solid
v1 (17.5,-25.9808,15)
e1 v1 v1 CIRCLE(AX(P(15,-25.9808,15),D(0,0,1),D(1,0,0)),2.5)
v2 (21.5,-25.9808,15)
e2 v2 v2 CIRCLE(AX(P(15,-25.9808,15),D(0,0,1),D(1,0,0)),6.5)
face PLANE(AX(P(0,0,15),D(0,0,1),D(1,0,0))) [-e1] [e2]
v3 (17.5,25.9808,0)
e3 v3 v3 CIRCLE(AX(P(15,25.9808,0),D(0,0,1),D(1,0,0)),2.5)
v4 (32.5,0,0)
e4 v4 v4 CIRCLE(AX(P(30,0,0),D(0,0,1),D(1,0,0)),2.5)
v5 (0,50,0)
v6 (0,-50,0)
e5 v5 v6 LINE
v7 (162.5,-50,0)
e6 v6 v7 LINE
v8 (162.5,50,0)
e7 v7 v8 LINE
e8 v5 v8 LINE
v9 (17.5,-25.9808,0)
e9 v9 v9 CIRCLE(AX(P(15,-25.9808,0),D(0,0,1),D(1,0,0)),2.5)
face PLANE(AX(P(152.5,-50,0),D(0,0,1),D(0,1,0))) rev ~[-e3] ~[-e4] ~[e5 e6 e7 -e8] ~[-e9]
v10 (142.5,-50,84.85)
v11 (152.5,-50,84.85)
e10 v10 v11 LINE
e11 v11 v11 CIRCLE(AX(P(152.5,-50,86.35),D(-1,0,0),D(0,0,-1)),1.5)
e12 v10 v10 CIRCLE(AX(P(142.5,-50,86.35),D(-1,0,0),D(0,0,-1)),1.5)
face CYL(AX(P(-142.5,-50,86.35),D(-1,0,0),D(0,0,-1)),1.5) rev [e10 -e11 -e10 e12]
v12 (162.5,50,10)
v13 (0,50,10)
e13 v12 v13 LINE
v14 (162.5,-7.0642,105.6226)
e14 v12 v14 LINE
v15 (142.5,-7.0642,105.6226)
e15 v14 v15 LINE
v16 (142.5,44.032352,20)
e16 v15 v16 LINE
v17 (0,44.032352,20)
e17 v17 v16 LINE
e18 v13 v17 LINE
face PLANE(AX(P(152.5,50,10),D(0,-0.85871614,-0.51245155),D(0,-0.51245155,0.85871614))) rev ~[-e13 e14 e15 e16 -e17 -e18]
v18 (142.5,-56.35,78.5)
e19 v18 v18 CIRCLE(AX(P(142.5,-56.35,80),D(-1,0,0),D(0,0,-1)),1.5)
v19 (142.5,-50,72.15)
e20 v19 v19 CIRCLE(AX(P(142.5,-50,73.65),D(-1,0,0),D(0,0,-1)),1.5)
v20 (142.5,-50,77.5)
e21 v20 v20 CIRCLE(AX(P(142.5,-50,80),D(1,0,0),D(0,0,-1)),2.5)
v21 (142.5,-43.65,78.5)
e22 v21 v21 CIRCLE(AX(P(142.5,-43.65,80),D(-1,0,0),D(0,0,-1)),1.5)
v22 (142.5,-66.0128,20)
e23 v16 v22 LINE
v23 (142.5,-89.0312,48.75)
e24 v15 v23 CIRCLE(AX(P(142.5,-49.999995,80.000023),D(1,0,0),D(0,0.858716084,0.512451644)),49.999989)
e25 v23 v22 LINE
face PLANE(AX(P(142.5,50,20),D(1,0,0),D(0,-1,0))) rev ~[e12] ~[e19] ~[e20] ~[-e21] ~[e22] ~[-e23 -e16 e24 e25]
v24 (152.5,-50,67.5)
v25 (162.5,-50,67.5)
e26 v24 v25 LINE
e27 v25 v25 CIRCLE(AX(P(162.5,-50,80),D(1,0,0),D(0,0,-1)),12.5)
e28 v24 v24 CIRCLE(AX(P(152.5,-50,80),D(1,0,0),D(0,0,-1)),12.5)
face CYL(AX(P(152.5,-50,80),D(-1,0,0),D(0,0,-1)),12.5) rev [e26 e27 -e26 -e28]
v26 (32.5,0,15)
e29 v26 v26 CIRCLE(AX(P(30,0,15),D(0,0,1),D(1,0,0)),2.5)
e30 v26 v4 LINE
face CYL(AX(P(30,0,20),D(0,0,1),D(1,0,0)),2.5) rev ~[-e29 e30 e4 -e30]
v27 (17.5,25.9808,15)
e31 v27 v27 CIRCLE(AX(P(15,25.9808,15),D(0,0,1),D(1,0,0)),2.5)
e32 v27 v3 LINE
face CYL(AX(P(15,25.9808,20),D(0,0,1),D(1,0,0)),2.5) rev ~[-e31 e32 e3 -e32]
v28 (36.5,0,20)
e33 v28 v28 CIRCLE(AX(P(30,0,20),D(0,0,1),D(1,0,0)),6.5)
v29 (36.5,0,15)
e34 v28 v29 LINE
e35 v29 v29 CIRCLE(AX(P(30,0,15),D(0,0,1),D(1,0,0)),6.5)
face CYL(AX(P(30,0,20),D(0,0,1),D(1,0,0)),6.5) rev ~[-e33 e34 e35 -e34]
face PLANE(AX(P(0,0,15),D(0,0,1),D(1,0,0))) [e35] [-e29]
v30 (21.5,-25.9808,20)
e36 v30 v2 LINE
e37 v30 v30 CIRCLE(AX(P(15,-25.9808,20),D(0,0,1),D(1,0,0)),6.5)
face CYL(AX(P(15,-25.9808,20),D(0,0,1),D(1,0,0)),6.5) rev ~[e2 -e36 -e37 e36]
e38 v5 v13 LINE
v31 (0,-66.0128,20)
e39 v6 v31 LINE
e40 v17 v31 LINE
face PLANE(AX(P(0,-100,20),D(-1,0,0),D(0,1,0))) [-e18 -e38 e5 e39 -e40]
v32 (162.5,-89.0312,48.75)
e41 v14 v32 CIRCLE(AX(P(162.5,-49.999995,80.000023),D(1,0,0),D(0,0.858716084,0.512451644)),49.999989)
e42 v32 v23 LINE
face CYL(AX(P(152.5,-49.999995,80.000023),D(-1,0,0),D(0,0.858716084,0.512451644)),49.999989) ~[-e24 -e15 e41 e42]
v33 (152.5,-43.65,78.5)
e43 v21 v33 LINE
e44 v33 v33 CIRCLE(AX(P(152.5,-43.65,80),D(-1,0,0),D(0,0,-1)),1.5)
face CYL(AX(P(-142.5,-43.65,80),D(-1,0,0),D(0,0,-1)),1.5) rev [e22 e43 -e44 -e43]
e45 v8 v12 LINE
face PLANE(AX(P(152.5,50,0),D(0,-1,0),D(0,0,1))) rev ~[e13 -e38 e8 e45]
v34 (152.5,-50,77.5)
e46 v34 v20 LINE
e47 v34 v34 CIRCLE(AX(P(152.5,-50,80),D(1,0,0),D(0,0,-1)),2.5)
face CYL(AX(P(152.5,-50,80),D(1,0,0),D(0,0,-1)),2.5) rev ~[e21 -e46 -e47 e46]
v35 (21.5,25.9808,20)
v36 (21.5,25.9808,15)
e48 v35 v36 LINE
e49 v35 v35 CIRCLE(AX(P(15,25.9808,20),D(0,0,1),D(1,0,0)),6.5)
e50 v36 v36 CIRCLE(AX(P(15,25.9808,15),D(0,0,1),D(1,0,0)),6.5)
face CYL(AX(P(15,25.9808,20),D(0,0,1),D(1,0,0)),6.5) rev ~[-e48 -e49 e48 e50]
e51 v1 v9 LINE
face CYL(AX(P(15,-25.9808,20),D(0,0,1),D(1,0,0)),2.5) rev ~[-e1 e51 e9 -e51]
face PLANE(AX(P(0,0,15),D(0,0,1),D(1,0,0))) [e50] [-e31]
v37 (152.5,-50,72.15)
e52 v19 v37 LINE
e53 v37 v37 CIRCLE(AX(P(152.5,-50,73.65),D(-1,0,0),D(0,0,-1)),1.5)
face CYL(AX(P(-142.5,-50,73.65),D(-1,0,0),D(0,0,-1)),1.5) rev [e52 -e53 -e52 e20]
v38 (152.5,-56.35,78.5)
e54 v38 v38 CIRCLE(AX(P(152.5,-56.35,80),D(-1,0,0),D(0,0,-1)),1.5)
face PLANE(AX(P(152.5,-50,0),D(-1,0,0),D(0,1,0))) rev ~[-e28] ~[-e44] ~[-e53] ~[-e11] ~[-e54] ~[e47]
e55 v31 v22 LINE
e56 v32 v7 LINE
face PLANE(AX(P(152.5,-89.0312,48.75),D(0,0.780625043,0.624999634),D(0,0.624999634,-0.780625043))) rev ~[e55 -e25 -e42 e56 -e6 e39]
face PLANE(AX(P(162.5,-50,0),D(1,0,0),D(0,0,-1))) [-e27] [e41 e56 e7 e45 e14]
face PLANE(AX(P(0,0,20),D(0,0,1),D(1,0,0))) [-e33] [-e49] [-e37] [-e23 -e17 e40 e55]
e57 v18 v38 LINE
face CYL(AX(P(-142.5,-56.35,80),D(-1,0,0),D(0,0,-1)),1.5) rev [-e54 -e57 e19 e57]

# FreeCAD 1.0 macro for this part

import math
import FreeCAD as App
import Part
import Sketcher
from FreeCAD import Vector

doc = App.newDocument("Part")
body = doc.addObject("PartDesign::Body", "Body")

# Sketch on XY plane
sketch1 = body.newObject("Sketcher::SketchObject", "Sketch")
sketch1.AttachmentSupport = (doc.getObject("XY_Plane"), [""])
sketch1.MapMode = "FlatFace"
sketch1.addGeometry([
    Part.LineSegment(Vector(-152.5, 50, 0), Vector(-152.5, -50, 0)),
    Part.LineSegment(Vector(-152.5, -50, 0), Vector(152.5, -50, 0)),
    Part.LineSegment(Vector(152.5, -50, 0), Vector(152.5, 50, 0)),
    Part.LineSegment(Vector(152.5, 50, 0), Vector(-152.5, 50, 0)),
], False)
sketch1.addConstraint([
    Sketcher.Constraint("Coincident", 0, 2, 1, 1),
    Sketcher.Constraint("Coincident", 1, 2, 2, 1),
    Sketcher.Constraint("Coincident", 2, 2, 3, 1),
    Sketcher.Constraint("Coincident", 3, 2, 0, 1),
    Sketcher.Constraint("Vertical", 0),
    Sketcher.Constraint("Horizontal", 1),
    Sketcher.Constraint("Vertical", 2),
    Sketcher.Constraint("Horizontal", 3),
    Sketcher.Constraint("Symmetric", 0, 2, 2, 2, -1, 1),
    Sketcher.Constraint("DistanceX", 1, 1, 1, 2, 305.0),
    Sketcher.Constraint("DistanceY", 0, 2, 0, 1, 100.0),
])
pad1 = body.newObject("PartDesign::Pad", "Pad")
pad1.Profile = sketch1
pad1.Length = 10

# Sketch on YZ plane
sketch2 = body.newObject("Sketcher::SketchObject", "Sketch001")
sketch2.AttachmentSupport = (doc.getObject("YZ_Plane"), [""])
sketch2.MapMode = "FlatFace"
sketch2.AttachmentOffset = App.Placement(Vector(0, 0, 152.5), App.Rotation())
sketch2.addGeometry([
    Part.LineSegment(Vector(-89.0312, 48.75, 0), Vector(-50, 0, 0)),  # 0
    Part.LineSegment(Vector(-50, 0, 0), Vector(-50, 10, 0)),  # 1
    Part.LineSegment(Vector(-50, 10, 0), Vector(50, 10, 0)),  # 2
    Part.LineSegment(Vector(50, 10, 0), Vector(-7.0642, 105.6226, 0)),  # 3
    Part.ArcOfCircle(Part.Circle(Vector(-50, 80, 0), Vector(0, 0, 1), 50), math.radians(30.827291), math.radians(218.682214)),  # 4
], False)
sketch2.addConstraint([
    Sketcher.Constraint("Coincident", 0, 2, 1, 1),
    Sketcher.Constraint("Coincident", 1, 2, 2, 1),
    Sketcher.Constraint("Coincident", 2, 2, 3, 1),
    Sketcher.Constraint("Tangent", 3, 2, 4, 1),
    Sketcher.Constraint("Tangent", 4, 2, 0, 1),
    Sketcher.Constraint("Vertical", 1),
    Sketcher.Constraint("Horizontal", 2),
    Sketcher.Constraint("PointOnObject", 0, 2, -1),
    Sketcher.Constraint("Vertical", 4, 3, 0, 2),
    Sketcher.Constraint("Radius", 4, 50.0),
    Sketcher.Constraint("DistanceX", 2, 1, 2, 2, 100.0),
    Sketcher.Constraint("DistanceY", -1, 1, 4, 3, 80.0),
    Sketcher.Constraint("DistanceY", 1, 1, 1, 2, 10.0),
    Sketcher.Constraint("DistanceX", 4, 3, -1, 1, 50.0),
])
pad2 = body.newObject("PartDesign::Pad", "Pad001")
pad2.Profile = sketch2
pad2.Length = 305
pad2.Reversed = True

# Sketch on XY plane
sketch3 = body.newObject("Sketcher::SketchObject", "Sketch002")
sketch3.AttachmentSupport = (doc.getObject("XY_Plane"), [""])
sketch3.MapMode = "FlatFace"
sketch3.AttachmentOffset = App.Placement(Vector(0, 0, 20), App.Rotation())
sketch3.addGeometry([
    Part.LineSegment(Vector(142.5, -100, 0), Vector(142.5, 50, 0)),
    Part.LineSegment(Vector(142.5, 50, 0), Vector(-142.5, 50, 0)),
    Part.LineSegment(Vector(-142.5, 50, 0), Vector(-142.5, -100, 0)),
    Part.LineSegment(Vector(-142.5, -100, 0), Vector(142.5, -100, 0)),
], False)
sketch3.addConstraint([
    Sketcher.Constraint("Coincident", 0, 2, 1, 1),
    Sketcher.Constraint("Coincident", 1, 2, 2, 1),
    Sketcher.Constraint("Coincident", 2, 2, 3, 1),
    Sketcher.Constraint("Coincident", 3, 2, 0, 1),
    Sketcher.Constraint("Vertical", 0),
    Sketcher.Constraint("Horizontal", 1),
    Sketcher.Constraint("Vertical", 2),
    Sketcher.Constraint("Horizontal", 3),
    Sketcher.Constraint("DistanceX", 1, 2, 1, 1, 285.0),
    Sketcher.Constraint("DistanceY", 0, 1, 0, 2, 150.0),
    Sketcher.Constraint("DistanceY", -1, 1, 0, 2, 50.0),
    Sketcher.Constraint("DistanceX", -1, 1, 0, 2, 142.5),
])
pocket1 = body.newObject("PartDesign::Pocket", "Pocket")
pocket1.Profile = sketch3
pocket1.Type = "ThroughAll"
pocket1.Reversed = True

# Sketch on YZ plane
sketch4 = body.newObject("Sketcher::SketchObject", "Sketch003")
sketch4.AttachmentSupport = (doc.getObject("YZ_Plane"), [""])
sketch4.MapMode = "FlatFace"
sketch4.AttachmentOffset = App.Placement(Vector(0, 0, 152.5), App.Rotation())
sketch4.addGeometry(Part.Circle(Vector(-50, 80, 0), Vector(0, 0, 1), 2.5), False)
sketch4.addConstraint([
    Sketcher.Constraint("Diameter", 0, 5.0),
    Sketcher.Constraint("DistanceX", 0, 3, -1, 1, 50.0),
    Sketcher.Constraint("DistanceY", -1, 1, 0, 3, 80.0),
])
pocket2 = body.newObject("PartDesign::Pocket", "Pocket001")
pocket2.Profile = sketch4
pocket2.Type = "ThroughAll"

# Sketch on XY plane
sketch5 = body.newObject("Sketcher::SketchObject", "Sketch004")
sketch5.AttachmentSupport = (doc.getObject("XY_Plane"), [""])
sketch5.MapMode = "FlatFace"
sketch5.AttachmentOffset = App.Placement(Vector(0, 0, 20), App.Rotation())
sketch5.addGeometry([
    Part.Circle(Vector(30, 0, 0), Vector(0, 0, 1), 2.5),  # 0
    Part.Circle(Vector(15, 25.9808, 0), Vector(0, 0, 1), 2.5),  # 1
    Part.Circle(Vector(-15, 25.9808, 0), Vector(0, 0, 1), 2.5),  # 2
    Part.Circle(Vector(-30, 0, 0), Vector(0, 0, 1), 2.5),  # 3
    Part.Circle(Vector(-15, -25.9808, 0), Vector(0, 0, 1), 2.5),  # 4
    Part.Circle(Vector(15, -25.9808, 0), Vector(0, 0, 1), 2.5),  # 5
], False)
sketch5.addConstraint([
    Sketcher.Constraint("Equal", 0, 1),
    Sketcher.Constraint("Equal", 1, 2),
    Sketcher.Constraint("Equal", 2, 3),
    Sketcher.Constraint("Equal", 3, 4),
    Sketcher.Constraint("Equal", 4, 5),
    Sketcher.Constraint("Symmetric", 0, 3, 3, 3, -1, 1),
    Sketcher.Constraint("Symmetric", 1, 3, 4, 3, -1, 1),
    Sketcher.Constraint("Symmetric", 2, 3, 5, 3, -1, 1),
    Sketcher.Constraint("Symmetric", 1, 3, 2, 3, -2),
    Sketcher.Constraint("PointOnObject", 0, 3, -1),
    Sketcher.Constraint("Diameter", 0, 5.0),
    Sketcher.Constraint("DistanceX", -1, 1, 0, 3, 30.0),
    Sketcher.Constraint("DistanceX", 2, 3, 1, 3, 30.0),
    Sketcher.Constraint("DistanceY", -1, 1, 1, 3, 25.9808),
])
pocket3 = body.newObject("PartDesign::Pocket", "Pocket002")
pocket3.Profile = sketch5
pocket3.Type = "ThroughAll"

# Sketch on YZ plane
sketch6 = body.newObject("Sketcher::SketchObject", "Sketch005")
sketch6.AttachmentSupport = (doc.getObject("YZ_Plane"), [""])
sketch6.MapMode = "FlatFace"
sketch6.AttachmentOffset = App.Placement(Vector(0, 0, -142.5), App.Rotation())
sketch6.addGeometry([
    Part.Circle(Vector(-43.65, 80, 0), Vector(0, 0, 1), 1.5),
    Part.Circle(Vector(-50, 86.35, 0), Vector(0, 0, 1), 1.5),
    Part.Circle(Vector(-56.35, 80, 0), Vector(0, 0, 1), 1.5),
    Part.Circle(Vector(-50, 73.65, 0), Vector(0, 0, 1), 1.5),
], False)
sketch6.addConstraint([
    Sketcher.Constraint("Equal", 0, 1),
    Sketcher.Constraint("Equal", 1, 2),
    Sketcher.Constraint("Equal", 2, 3),
    Sketcher.Constraint("Horizontal", 0, 3, 2, 3),
    Sketcher.Constraint("Vertical", 1, 3, 3, 3),
    Sketcher.Constraint("Diameter", 0, 3.0),
    Sketcher.Constraint("DistanceX", 1, 3, 0, 3, 6.35),
    Sketcher.Constraint("DistanceY", 0, 3, 1, 3, 6.35),
    Sketcher.Constraint("DistanceX", 2, 3, 1, 3, 6.35),
    Sketcher.Constraint("DistanceY", 3, 3, 0, 3, 6.35),
    Sketcher.Constraint("DistanceY", -1, 1, 0, 3, 80.0),
    Sketcher.Constraint("DistanceX", 1, 3, -1, 1, 50.0),
])
pocket4 = body.newObject("PartDesign::Pocket", "Pocket003")
pocket4.Profile = sketch6
pocket4.Type = "ThroughAll"
pocket4.Midplane = True

# Sketch on XY plane
sketch7 = body.newObject("Sketcher::SketchObject", "Sketch006")
sketch7.AttachmentSupport = (doc.getObject("XY_Plane"), [""])
sketch7.MapMode = "FlatFace"
sketch7.AttachmentOffset = App.Placement(Vector(0, 0, 20), App.Rotation())
sketch7.addGeometry([
    Part.LineSegment(Vector(0, -100, 0), Vector(0, 50, 0)),
    Part.LineSegment(Vector(0, 50, 0), Vector(-152.5, 50, 0)),
    Part.LineSegment(Vector(-152.5, 50, 0), Vector(-152.5, -100, 0)),
    Part.LineSegment(Vector(-152.5, -100, 0), Vector(0, -100, 0)),
], False)
sketch7.addConstraint([
    Sketcher.Constraint("Coincident", 0, 2, 1, 1),
    Sketcher.Constraint("Coincident", 1, 2, 2, 1),
    Sketcher.Constraint("Coincident", 2, 2, 3, 1),
    Sketcher.Constraint("Coincident", 3, 2, 0, 1),
    Sketcher.Constraint("Vertical", 0),
    Sketcher.Constraint("Horizontal", 1),
    Sketcher.Constraint("Vertical", 2),
    Sketcher.Constraint("Horizontal", 3),
    Sketcher.Constraint("PointOnObject", 0, 2, -2),
    Sketcher.Constraint("DistanceY", 0, 1, 0, 2, 150.0),
    Sketcher.Constraint("DistanceX", 1, 2, 1, 1, 152.5),
    Sketcher.Constraint("DistanceY", -1, 1, 0, 2, 50.0),
])
pocket5 = body.newObject("PartDesign::Pocket", "Pocket004")
pocket5.Profile = sketch7
pocket5.Type = "ThroughAll"
pocket5.Midplane = True

# Sketch on YZ plane
sketch8 = body.newObject("Sketcher::SketchObject", "Sketch007")
sketch8.AttachmentSupport = (doc.getObject("YZ_Plane"), [""])
sketch8.MapMode = "FlatFace"
sketch8.AttachmentOffset = App.Placement(Vector(0, 0, 152.5), App.Rotation())
sketch8.addGeometry([
    Part.LineSegment(Vector(-89.0312, 48.75, 0), Vector(-50, 0, 0)),  # 0
    Part.LineSegment(Vector(-50, 0, 0), Vector(50, 0, 0)),  # 1
    Part.LineSegment(Vector(50, 0, 0), Vector(50, 10, 0)),  # 2
    Part.LineSegment(Vector(50, 10, 0), Vector(-7.0642, 105.6226, 0)),  # 3
    Part.ArcOfCircle(Part.Circle(Vector(-50, 80, 0), Vector(0, 0, 1), 50.000006), math.radians(30.827291), math.radians(218.682214)),  # 4
    Part.Circle(Vector(-50, 80, 0), Vector(0, 0, 1), 12.5),  # 5
], False)
sketch8.addConstraint([
    Sketcher.Constraint("Coincident", 0, 2, 1, 1),
    Sketcher.Constraint("Coincident", 1, 2, 2, 1),
    Sketcher.Constraint("Coincident", 2, 2, 3, 1),
    Sketcher.Constraint("Tangent", 3, 2, 4, 1),
    Sketcher.Constraint("Tangent", 4, 2, 0, 1),
    Sketcher.Constraint("Horizontal", 1),
    Sketcher.Constraint("Vertical", 2),
    Sketcher.Constraint("Coincident", 5, 3, 4, 3),
    Sketcher.Constraint("Symmetric", 0, 2, 1, 2, -1, 1),
    Sketcher.Constraint("Vertical", 5, 3, 0, 2),
    Sketcher.Constraint("Diameter", 5, 25.0),
    Sketcher.Constraint("Radius", 4, 50.0),
    Sketcher.Constraint("DistanceX", 1, 1, 1, 2, 100.0),
    Sketcher.Constraint("DistanceY", 2, 1, 2, 2, 10.0),
    Sketcher.Constraint("DistanceY", -1, 1, 4, 3, 80.0),
])
pad3 = body.newObject("PartDesign::Pad", "Pad002")
pad3.Profile = sketch8
pad3.Length = 10

# Sketch on XY plane
sketch9 = body.newObject("Sketcher::SketchObject", "Sketch008")
sketch9.AttachmentSupport = (doc.getObject("XY_Plane"), [""])
sketch9.MapMode = "FlatFace"
sketch9.AttachmentOffset = App.Placement(Vector(0, 0, 20), App.Rotation())
sketch9.addGeometry([
    Part.Circle(Vector(30, 0, 0), Vector(0, 0, 1), 6.5),  # 0
    Part.Circle(Vector(15, 25.9808, 0), Vector(0, 0, 1), 6.5),  # 1
    Part.Circle(Vector(-15, 25.9808, 0), Vector(0, 0, 1), 6.5),  # 2
    Part.Circle(Vector(-30, 0, 0), Vector(0, 0, 1), 6.5),  # 3
    Part.Circle(Vector(-15, -25.9808, 0), Vector(0, 0, 1), 6.5),  # 4
    Part.Circle(Vector(15, -25.9808, 0), Vector(0, 0, 1), 6.5),  # 5
], False)
sketch9.addConstraint([
    Sketcher.Constraint("Equal", 0, 1),
    Sketcher.Constraint("Equal", 1, 2),
    Sketcher.Constraint("Equal", 2, 3),
    Sketcher.Constraint("Equal", 3, 4),
    Sketcher.Constraint("Equal", 4, 5),
    Sketcher.Constraint("Symmetric", 0, 3, 3, 3, -1, 1),
    Sketcher.Constraint("Symmetric", 1, 3, 4, 3, -1, 1),
    Sketcher.Constraint("Symmetric", 2, 3, 5, 3, -1, 1),
    Sketcher.Constraint("Symmetric", 1, 3, 2, 3, -2),
    Sketcher.Constraint("PointOnObject", 0, 3, -1),
    Sketcher.Constraint("Diameter", 0, 13.0),
    Sketcher.Constraint("DistanceX", -1, 1, 0, 3, 30.0),
    Sketcher.Constraint("DistanceX", -1, 1, 1, 3, 15.0),
    Sketcher.Constraint("DistanceY", -1, 1, 1, 3, 25.9808),
])
pocket6 = body.newObject("PartDesign::Pocket", "Pocket005")
pocket6.Profile = sketch9
pocket6.Length = 5

doc.recompute()
